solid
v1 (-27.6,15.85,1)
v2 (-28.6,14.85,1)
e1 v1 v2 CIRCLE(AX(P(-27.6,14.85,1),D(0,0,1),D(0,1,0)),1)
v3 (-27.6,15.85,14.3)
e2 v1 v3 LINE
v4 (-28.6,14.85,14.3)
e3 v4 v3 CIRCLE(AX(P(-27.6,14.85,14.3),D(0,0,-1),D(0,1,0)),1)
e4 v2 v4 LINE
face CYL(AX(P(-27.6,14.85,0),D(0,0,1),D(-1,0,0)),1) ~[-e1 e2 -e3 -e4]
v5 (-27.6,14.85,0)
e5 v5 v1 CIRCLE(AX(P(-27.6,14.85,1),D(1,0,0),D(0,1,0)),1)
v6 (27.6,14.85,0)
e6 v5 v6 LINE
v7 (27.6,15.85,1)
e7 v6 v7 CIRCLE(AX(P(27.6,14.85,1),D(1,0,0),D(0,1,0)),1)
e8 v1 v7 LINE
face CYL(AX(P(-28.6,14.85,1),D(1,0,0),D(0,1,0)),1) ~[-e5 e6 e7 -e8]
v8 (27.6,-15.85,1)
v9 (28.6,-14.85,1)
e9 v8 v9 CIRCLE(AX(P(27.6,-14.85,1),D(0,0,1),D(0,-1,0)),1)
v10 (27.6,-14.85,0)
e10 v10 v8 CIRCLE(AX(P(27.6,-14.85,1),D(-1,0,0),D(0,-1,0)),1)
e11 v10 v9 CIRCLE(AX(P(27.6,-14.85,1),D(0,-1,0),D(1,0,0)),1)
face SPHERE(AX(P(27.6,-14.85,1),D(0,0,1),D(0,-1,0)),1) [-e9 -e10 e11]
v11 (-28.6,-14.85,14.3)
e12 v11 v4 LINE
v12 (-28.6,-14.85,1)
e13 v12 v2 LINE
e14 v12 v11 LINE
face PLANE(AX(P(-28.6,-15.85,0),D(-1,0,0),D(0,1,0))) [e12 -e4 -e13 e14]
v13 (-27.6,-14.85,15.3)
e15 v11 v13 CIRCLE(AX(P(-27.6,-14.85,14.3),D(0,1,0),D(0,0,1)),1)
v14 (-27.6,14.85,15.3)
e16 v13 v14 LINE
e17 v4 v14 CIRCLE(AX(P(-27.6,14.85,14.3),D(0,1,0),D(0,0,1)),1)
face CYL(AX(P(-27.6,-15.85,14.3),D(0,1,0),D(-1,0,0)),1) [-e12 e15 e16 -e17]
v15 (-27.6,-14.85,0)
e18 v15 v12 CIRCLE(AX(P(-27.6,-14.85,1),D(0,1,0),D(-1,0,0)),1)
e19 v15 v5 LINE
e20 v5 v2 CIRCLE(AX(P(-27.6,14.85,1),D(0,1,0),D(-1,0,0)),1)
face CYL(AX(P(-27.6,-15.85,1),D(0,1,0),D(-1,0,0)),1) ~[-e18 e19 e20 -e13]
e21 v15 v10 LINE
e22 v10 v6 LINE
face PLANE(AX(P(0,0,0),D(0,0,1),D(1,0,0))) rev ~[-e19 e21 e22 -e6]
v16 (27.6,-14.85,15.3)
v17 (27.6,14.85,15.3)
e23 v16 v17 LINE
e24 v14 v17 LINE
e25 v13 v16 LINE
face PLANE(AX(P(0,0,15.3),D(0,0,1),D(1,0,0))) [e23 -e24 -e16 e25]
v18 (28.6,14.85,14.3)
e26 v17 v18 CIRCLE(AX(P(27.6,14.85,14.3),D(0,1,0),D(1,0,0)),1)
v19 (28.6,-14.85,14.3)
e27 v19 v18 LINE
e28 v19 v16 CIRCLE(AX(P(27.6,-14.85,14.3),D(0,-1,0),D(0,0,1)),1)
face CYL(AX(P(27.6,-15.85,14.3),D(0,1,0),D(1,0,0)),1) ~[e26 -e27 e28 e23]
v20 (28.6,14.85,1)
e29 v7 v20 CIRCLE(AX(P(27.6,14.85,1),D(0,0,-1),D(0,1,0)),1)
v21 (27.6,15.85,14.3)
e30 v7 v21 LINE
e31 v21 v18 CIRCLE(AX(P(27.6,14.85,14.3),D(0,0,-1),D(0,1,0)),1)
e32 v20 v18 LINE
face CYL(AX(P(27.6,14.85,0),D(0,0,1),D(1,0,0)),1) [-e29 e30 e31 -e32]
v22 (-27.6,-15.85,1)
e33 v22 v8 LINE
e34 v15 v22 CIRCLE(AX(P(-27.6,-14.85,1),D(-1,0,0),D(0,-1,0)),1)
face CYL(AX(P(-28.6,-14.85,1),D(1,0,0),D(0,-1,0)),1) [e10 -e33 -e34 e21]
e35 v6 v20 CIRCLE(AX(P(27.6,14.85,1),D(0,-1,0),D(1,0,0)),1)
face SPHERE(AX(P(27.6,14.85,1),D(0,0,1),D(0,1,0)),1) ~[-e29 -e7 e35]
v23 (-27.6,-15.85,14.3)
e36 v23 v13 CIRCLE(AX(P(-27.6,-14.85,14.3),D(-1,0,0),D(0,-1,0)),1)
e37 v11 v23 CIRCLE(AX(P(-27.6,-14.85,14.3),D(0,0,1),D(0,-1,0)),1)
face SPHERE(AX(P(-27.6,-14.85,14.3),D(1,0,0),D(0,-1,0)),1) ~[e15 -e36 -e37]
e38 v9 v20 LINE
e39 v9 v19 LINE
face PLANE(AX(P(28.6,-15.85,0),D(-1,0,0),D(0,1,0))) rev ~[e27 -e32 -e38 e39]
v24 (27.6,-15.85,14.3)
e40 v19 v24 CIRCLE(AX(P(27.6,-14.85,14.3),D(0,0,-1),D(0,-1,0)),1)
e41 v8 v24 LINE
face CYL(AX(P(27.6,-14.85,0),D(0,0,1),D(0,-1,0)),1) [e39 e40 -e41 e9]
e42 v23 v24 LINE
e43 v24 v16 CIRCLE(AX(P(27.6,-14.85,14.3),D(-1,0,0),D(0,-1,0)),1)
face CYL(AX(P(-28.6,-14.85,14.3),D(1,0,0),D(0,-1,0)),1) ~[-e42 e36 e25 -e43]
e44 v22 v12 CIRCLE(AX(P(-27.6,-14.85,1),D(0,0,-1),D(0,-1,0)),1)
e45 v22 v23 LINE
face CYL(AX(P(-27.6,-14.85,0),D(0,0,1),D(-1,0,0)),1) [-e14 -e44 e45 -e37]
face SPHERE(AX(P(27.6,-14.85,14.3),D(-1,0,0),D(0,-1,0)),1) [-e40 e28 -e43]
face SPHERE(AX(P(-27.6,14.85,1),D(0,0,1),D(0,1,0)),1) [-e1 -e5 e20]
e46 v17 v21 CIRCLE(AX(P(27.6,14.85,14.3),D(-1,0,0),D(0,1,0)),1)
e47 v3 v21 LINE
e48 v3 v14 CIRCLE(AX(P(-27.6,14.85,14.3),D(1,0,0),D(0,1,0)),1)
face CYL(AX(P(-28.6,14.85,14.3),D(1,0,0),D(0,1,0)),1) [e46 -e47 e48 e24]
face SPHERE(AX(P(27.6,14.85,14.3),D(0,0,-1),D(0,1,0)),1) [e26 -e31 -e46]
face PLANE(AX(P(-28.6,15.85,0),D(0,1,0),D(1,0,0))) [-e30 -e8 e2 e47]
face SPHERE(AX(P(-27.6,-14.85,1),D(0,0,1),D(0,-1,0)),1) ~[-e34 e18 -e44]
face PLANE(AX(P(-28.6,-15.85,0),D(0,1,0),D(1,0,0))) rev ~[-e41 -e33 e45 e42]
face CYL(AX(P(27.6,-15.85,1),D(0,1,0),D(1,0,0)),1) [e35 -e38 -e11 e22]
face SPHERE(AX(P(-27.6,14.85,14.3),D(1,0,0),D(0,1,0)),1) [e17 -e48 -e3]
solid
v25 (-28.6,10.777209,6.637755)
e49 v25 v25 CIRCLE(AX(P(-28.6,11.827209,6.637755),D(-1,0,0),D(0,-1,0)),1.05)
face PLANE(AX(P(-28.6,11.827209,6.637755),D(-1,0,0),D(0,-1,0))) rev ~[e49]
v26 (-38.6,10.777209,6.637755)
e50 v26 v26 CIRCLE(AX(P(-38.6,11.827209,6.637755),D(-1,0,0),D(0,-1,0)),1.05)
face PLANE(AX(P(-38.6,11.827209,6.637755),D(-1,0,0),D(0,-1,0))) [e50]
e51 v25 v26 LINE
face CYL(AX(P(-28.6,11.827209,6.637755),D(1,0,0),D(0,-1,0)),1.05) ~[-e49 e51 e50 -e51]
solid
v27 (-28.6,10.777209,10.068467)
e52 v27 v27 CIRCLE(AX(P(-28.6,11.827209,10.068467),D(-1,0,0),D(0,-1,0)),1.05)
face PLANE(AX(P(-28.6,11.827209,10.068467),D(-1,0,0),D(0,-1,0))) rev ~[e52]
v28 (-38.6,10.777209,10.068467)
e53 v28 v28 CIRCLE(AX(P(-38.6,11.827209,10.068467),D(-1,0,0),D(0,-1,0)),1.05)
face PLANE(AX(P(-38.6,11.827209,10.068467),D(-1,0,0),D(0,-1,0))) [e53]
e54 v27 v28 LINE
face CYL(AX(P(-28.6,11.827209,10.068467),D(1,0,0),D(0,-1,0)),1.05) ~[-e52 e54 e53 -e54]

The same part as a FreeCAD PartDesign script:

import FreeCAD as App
import Part
import Sketcher
Q = App.Units.Quantity


def add_polygon(sketch, points):
    """Adds a closed chain of lines whose ends are joined by coincident constraints."""
    first, n = sketch.GeometryCount, len(points)
    for a, b in zip(points, points[1:] + points[:1]):
        sketch.addGeometry(Part.LineSegment(App.Vector(*a, 0), App.Vector(*b, 0)), False)
    for i in range(n):
        sketch.addConstraint(Sketcher.Constraint("Coincident", first + i, 2, first + (i + 1) % n, 1))

doc = App.newDocument("Part")
body = doc.addObject("PartDesign::Body", "Body")

# Sketch on XY plane
sketch1 = doc.addObject("Sketcher::SketchObject", "Sketch")
body.addObject(sketch1)
sketch1.AttachmentSupport = (doc.XY_Plane, [""])
sketch1.MapMode = "FlatFace"
add_polygon(sketch1, [(-29, 16), (-29, -16), (29, -16), (29, 16)])  # lines 0-3
sketch1.addConstraint(Sketcher.Constraint("Vertical", 0))
sketch1.addConstraint(Sketcher.Constraint("Horizontal", 1))
sketch1.addConstraint(Sketcher.Constraint("Vertical", 2))
sketch1.addConstraint(Sketcher.Constraint("Horizontal", 3))
sketch1.addConstraint(Sketcher.Constraint("Symmetric", 0, 2, 2, 2, -1, 1))
sketch1.addConstraint(Sketcher.Constraint("DistanceX", 1, 1, 1, 2, Q("57.2 mm")))
sketch1.addConstraint(Sketcher.Constraint("DistanceY", 0, 2, 0, 1, Q("31.7 mm")))
pad1 = doc.addObject("PartDesign::Pad", "Pad")
body.addObject(pad1)
pad1.Profile = sketch1
pad1.Length = 15.3
doc.recompute()

fillet = doc.addObject("PartDesign::Fillet", "Fillet")
body.addObject(fillet)
fillet.Base = (pad1, ["Edge1"])
fillet.UseAllEdges = True
fillet.Radius = 1
body2 = doc.addObject("PartDesign::Body", "Body001")
body2.AllowCompound = True

# Sketch on YZ plane
sketch2 = doc.addObject("Sketcher::SketchObject", "Sketch001")
body2.addObject(sketch2)
sketch2.AttachmentSupport = (doc.getObject("YZ_Plane001"), [""])
sketch2.MapMode = "FlatFace"
sketch2.AttachmentOffset = App.Placement(App.Vector(0, 0, -28.6), App.Rotation())
sketch2.addGeometry(Part.Circle(App.Vector(11.8, 10.1, 0), App.Vector(0, 0, 1), 1.1), False)
sketch2.addGeometry(Part.Circle(App.Vector(11.8, 6.6, 0), App.Vector(0, 0, 1), 1.1), False)
sketch2.addConstraint(Sketcher.Constraint("Equal", 0, 1))
sketch2.addConstraint(Sketcher.Constraint("Vertical", 0, 3, 1, 3))
sketch2.addConstraint(Sketcher.Constraint("Diameter", 0, Q("2.1 mm")))
sketch2.addConstraint(Sketcher.Constraint("DistanceX", -1, 1, 0, 3, Q("11.827209 mm")))
sketch2.addConstraint(Sketcher.Constraint("DistanceY", 1, 3, 0, 3, Q("3.430712 mm")))
sketch2.addConstraint(Sketcher.Constraint("DistanceY", -1, 1, 0, 3, Q("10.068467 mm")))
pad2 = doc.addObject("PartDesign::Pad", "Pad001")
body2.addObject(pad2)
pad2.Profile = sketch2
pad2.Length = 10
pad2.Reversed = True

doc.recompute()
